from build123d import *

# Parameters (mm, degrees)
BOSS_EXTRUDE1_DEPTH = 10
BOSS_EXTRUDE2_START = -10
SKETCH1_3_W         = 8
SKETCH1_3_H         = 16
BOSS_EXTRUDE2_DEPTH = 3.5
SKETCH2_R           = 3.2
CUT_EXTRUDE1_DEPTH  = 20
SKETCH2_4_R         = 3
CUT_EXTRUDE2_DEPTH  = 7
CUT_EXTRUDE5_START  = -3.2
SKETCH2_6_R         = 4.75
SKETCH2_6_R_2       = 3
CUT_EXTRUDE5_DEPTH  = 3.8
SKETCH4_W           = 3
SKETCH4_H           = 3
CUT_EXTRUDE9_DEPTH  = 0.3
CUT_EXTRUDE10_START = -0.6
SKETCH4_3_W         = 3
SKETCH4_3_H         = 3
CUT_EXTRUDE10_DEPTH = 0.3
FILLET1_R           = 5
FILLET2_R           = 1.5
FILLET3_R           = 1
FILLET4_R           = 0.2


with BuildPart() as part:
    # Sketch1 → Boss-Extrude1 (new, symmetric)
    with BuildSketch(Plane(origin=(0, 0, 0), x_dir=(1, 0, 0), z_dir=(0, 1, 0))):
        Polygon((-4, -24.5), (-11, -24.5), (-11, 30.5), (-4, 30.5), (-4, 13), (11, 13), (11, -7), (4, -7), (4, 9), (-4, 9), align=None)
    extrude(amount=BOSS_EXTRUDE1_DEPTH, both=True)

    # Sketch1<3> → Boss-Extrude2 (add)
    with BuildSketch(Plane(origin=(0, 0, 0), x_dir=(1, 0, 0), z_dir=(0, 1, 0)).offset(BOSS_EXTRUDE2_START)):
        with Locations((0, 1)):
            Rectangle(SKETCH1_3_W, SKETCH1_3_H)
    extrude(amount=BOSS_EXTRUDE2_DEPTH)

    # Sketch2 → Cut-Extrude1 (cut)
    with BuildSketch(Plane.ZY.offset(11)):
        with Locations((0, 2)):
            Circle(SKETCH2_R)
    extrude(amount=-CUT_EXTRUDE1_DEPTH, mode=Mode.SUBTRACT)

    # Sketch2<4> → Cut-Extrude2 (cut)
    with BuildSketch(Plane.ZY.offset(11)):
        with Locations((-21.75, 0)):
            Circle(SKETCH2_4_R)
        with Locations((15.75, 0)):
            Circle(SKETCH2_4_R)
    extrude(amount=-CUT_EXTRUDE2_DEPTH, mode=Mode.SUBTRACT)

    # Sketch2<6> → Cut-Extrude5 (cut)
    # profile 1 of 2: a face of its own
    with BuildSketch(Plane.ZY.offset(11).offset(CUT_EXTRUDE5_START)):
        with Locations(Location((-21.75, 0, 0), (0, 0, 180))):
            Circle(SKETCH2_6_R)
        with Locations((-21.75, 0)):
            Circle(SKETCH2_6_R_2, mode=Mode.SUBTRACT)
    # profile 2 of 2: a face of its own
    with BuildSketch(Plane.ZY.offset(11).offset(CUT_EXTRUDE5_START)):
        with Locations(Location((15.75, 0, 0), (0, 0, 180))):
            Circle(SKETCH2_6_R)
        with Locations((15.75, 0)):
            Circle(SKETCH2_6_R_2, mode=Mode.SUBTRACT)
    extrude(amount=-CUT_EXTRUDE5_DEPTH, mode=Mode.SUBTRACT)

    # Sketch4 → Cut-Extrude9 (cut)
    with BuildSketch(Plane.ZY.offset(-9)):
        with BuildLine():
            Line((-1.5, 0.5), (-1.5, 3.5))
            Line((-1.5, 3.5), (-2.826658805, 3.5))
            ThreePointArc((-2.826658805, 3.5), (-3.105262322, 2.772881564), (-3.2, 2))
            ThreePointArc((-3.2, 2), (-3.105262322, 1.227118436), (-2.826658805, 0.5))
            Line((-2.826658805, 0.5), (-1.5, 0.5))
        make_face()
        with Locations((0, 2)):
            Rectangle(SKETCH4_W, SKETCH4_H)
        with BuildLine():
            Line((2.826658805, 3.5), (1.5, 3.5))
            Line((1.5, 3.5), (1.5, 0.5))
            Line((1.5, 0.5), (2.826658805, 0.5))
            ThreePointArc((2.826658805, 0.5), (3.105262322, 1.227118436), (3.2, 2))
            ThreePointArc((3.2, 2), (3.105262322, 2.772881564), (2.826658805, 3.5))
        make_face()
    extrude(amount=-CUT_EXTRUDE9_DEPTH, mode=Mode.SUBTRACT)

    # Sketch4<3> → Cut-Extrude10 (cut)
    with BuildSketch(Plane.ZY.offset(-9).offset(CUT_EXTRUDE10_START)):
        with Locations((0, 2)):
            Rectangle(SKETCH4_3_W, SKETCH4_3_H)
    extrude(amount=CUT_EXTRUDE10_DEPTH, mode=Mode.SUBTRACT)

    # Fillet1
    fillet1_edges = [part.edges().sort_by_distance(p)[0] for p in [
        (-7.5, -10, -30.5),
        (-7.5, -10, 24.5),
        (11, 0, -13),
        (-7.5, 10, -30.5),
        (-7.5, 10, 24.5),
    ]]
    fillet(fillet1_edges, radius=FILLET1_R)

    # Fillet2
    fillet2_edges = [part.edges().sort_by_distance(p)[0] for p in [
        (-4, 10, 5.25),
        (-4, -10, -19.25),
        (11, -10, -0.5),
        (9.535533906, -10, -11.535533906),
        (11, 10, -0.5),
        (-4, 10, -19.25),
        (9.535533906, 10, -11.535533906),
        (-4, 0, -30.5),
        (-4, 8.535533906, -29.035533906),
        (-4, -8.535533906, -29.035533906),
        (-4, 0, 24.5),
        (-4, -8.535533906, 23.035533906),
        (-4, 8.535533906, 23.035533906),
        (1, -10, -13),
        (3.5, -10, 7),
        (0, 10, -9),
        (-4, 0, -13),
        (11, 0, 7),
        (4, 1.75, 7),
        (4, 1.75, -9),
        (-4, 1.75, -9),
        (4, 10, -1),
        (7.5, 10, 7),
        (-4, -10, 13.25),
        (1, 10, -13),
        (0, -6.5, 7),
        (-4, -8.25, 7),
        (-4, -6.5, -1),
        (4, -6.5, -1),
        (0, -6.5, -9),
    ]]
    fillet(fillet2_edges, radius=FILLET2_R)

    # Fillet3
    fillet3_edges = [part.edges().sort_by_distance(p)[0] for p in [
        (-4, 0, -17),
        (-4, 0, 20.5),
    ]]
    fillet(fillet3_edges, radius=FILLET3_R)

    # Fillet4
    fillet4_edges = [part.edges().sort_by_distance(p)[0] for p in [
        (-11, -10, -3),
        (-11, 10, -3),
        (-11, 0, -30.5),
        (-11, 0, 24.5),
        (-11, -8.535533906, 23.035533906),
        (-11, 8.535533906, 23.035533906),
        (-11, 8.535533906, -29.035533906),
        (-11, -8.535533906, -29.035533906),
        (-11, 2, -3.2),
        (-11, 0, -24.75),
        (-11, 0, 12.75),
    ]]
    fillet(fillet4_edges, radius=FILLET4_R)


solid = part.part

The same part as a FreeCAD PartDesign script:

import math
import FreeCAD as App
import Part
import Sketcher
Q = App.Units.Quantity


def edges_at(feature, points):
    """Names of the edges that pass closest to the given points."""
    edges = feature.Shape.Edges
    near = lambda p: min(range(len(edges)), key=lambda i: edges[i].distToShape(Part.Vertex(*p))[0])
    return sorted({f"Edge{near(p) + 1}" for p in points})

doc = App.newDocument("Part")
params = doc.addObject("Spreadsheet::Sheet", "Params")
for row, (alias, value) in enumerate([
    ("sketch1_width", "7 mm"),
    ("sketch1_width2", "8 mm"),
    ("sketch1_height", "16 mm"),
    ("sketch1_height2", "20 mm"),
    ("sketch1_height3", "55 mm"),
    ("pad1_length", "20 mm"),
    ("sketch2_width", "8 mm"),
    ("sketch2_height", "16 mm"),
    ("pad2_length", "3.5 mm"),
    ("sketch3_diameter", "6.4 mm"),
    ("pocket1_length", "20 mm"),
    ("sketch4_diameter", "6 mm"),
    ("pocket2_length", "7 mm"),
    ("sketch5_diameter", "6 mm"),
    ("sketch5_diameter2", "9.5 mm"),
    ("pocket3_length", "3.8 mm"),
    ("sketch6_radius", "3.2 mm"),
    ("pocket4_length", "0.3 mm"),
    ("sketch7_width", "3 mm"),
    ("pocket5_length", "0.3 mm"),
    ("fillet_radius", "5 mm"),
    ("fillet2_radius", "1.5 mm"),
    ("fillet3_radius", "1 mm"),
    ("fillet4_radius", "0.2 mm"),
], start=1):
    params.set(f"A{row}", alias)
    params.set(f"B{row}", "=" + value)
    params.setAlias(f"B{row}", alias)

body = doc.addObject("PartDesign::Body", "Body")

# Sketch on XZ plane
sketch1 = body.newObject("Sketcher::SketchObject", "Sketch")
sketch1.AttachmentSupport = (doc.getObject("XZ_Plane"), [""])
sketch1.MapMode = "FlatFace"
sketch1.addGeometry(Part.LineSegment(App.Vector(-11, 24, 0), App.Vector(-4, 24, 0)), False)
sketch1.addGeometry(Part.LineSegment(App.Vector(-4, 24, 0), App.Vector(-4, -9, 0)), False)
sketch1.addGeometry(Part.LineSegment(App.Vector(-4, -9, 0), App.Vector(4, -9, 0)), False)
sketch1.addGeometry(Part.LineSegment(App.Vector(4, -9, 0), App.Vector(4, 7, 0)), False)
sketch1.addGeometry(Part.LineSegment(App.Vector(4, 7, 0), App.Vector(11, 7, 0)), False)
sketch1.addGeometry(Part.LineSegment(App.Vector(11, 7, 0), App.Vector(11, -13, 0)), False)
sketch1.addGeometry(Part.LineSegment(App.Vector(11, -13, 0), App.Vector(-4, -13, 0)), False)
sketch1.addGeometry(Part.LineSegment(App.Vector(-4, -13, 0), App.Vector(-4, -30, 0)), False)
sketch1.addGeometry(Part.LineSegment(App.Vector(-4, -30, 0), App.Vector(-11, -30, 0)), False)
sketch1.addGeometry(Part.LineSegment(App.Vector(-11, -30, 0), App.Vector(-11, 24, 0)), False)
sketch1.addConstraint(Sketcher.Constraint("Coincident", 0, 2, 1, 1))
sketch1.addConstraint(Sketcher.Constraint("Coincident", 1, 2, 2, 1))
sketch1.addConstraint(Sketcher.Constraint("Coincident", 2, 2, 3, 1))
sketch1.addConstraint(Sketcher.Constraint("Coincident", 3, 2, 4, 1))
sketch1.addConstraint(Sketcher.Constraint("Coincident", 4, 2, 5, 1))
sketch1.addConstraint(Sketcher.Constraint("Coincident", 5, 2, 6, 1))
sketch1.addConstraint(Sketcher.Constraint("Coincident", 6, 2, 7, 1))
sketch1.addConstraint(Sketcher.Constraint("Coincident", 7, 2, 8, 1))
sketch1.addConstraint(Sketcher.Constraint("Coincident", 8, 2, 9, 1))
sketch1.addConstraint(Sketcher.Constraint("Coincident", 9, 2, 0, 1))
sketch1.addConstraint(Sketcher.Constraint("Horizontal", 0))
sketch1.addConstraint(Sketcher.Constraint("Vertical", 1))
sketch1.addConstraint(Sketcher.Constraint("Horizontal", 2))
sketch1.addConstraint(Sketcher.Constraint("Vertical", 3))
sketch1.addConstraint(Sketcher.Constraint("Horizontal", 4))
sketch1.addConstraint(Sketcher.Constraint("Vertical", 5))
sketch1.addConstraint(Sketcher.Constraint("Horizontal", 6))
sketch1.addConstraint(Sketcher.Constraint("Vertical", 7))
sketch1.addConstraint(Sketcher.Constraint("Horizontal", 8))
sketch1.addConstraint(Sketcher.Constraint("Vertical", 9))
sketch1.addConstraint(Sketcher.Constraint("Vertical", 1, 2, 6, 2))
sketch1.addConstraint(Sketcher.Constraint("Equal", 0, 4))
sketch1.addConstraint(Sketcher.Constraint("DistanceX", 0, 1, 0, 2, Q("7 mm")))
sketch1.addConstraint(Sketcher.Constraint("DistanceX", 2, 1, 2, 2, Q("8 mm")))
sketch1.addConstraint(Sketcher.Constraint("DistanceY", 3, 1, 3, 2, Q("16 mm")))
sketch1.addConstraint(Sketcher.Constraint("DistanceY", 5, 2, 5, 1, Q("20 mm")))
sketch1.addConstraint(Sketcher.Constraint("DistanceY", 9, 1, 9, 2, Q("55 mm")))
sketch1.addConstraint(Sketcher.Constraint("DistanceY", 1, 2, 1, 1, Q("33.5 mm")))
sketch1.addConstraint(Sketcher.Constraint("DistanceX", 0, 2, -1, 1, Q("4 mm")))
sketch1.addConstraint(Sketcher.Constraint("DistanceY", 1, 2, -1, 1, Q("9 mm")))
sketch1.setExpression("Constraints[22]", "Params.sketch1_width")
sketch1.setExpression("Constraints[23]", "Params.sketch1_width2")
sketch1.setExpression("Constraints[24]", "Params.sketch1_height")
sketch1.setExpression("Constraints[25]", "Params.sketch1_height2")
sketch1.setExpression("Constraints[26]", "Params.sketch1_height3")
pad1 = body.newObject("PartDesign::Pad", "Pad")
pad1.Profile = sketch1
pad1.setExpression("Length", "Params.pad1_length")
pad1.Midplane = True

# Sketch on XZ plane
sketch2 = body.newObject("Sketcher::SketchObject", "Sketch001")
sketch2.AttachmentSupport = (doc.getObject("XZ_Plane"), [""])
sketch2.MapMode = "FlatFace"
sketch2.AttachmentOffset = App.Placement(App.Vector(0, 0, 10), App.Rotation())
sketch2.addGeometry(Part.LineSegment(App.Vector(-4, -9, 0), App.Vector(-4, 7, 0)), False)
sketch2.addGeometry(Part.LineSegment(App.Vector(-4, 7, 0), App.Vector(4, 7, 0)), False)
sketch2.addGeometry(Part.LineSegment(App.Vector(4, 7, 0), App.Vector(4, -9, 0)), False)
sketch2.addGeometry(Part.LineSegment(App.Vector(4, -9, 0), App.Vector(-4, -9, 0)), False)
sketch2.addConstraint(Sketcher.Constraint("Coincident", 0, 2, 1, 1))
sketch2.addConstraint(Sketcher.Constraint("Coincident", 1, 2, 2, 1))
sketch2.addConstraint(Sketcher.Constraint("Coincident", 2, 2, 3, 1))
sketch2.addConstraint(Sketcher.Constraint("Coincident", 3, 2, 0, 1))
sketch2.addConstraint(Sketcher.Constraint("Vertical", 0))
sketch2.addConstraint(Sketcher.Constraint("Horizontal", 1))
sketch2.addConstraint(Sketcher.Constraint("Vertical", 2))
sketch2.addConstraint(Sketcher.Constraint("Horizontal", 3))
sketch2.addConstraint(Sketcher.Constraint("DistanceX", 1, 1, 1, 2, Q("8 mm")))
sketch2.addConstraint(Sketcher.Constraint("DistanceY", 0, 1, 0, 2, Q("16 mm")))
sketch2.addConstraint(Sketcher.Constraint("DistanceX", 0, 2, -1, 1, Q("4 mm")))
sketch2.addConstraint(Sketcher.Constraint("DistanceY", -1, 1, 0, 2, Q("7 mm")))
sketch2.setExpression("Constraints[8]", "Params.sketch2_width")
sketch2.setExpression("Constraints[9]", "Params.sketch2_height")
pad2 = body.newObject("PartDesign::Pad", "Pad001")
pad2.Profile = sketch2
pad2.setExpression("Length", "Params.pad2_length")
pad2.Reversed = True

# Sketch on YZ plane
sketch3 = body.newObject("Sketcher::SketchObject", "Sketch002")
sketch3.AttachmentSupport = (doc.getObject("YZ_Plane"), [""])
sketch3.MapMode = "FlatFace"
sketch3.AttachmentOffset = App.Placement(App.Vector(0, 0, -11), App.Rotation())
sketch3.addGeometry(Part.Circle(App.Vector(2, 0, 0), App.Vector(0, 0, 1), 3.2), False)
sketch3.addConstraint(Sketcher.Constraint("PointOnObject", 0, 3, -1))
sketch3.addConstraint(Sketcher.Constraint("Diameter", 0, Q("6.4 mm")))
sketch3.addConstraint(Sketcher.Constraint("DistanceX", -1, 1, 0, 3, Q("2 mm")))
sketch3.setExpression("Constraints[1]", "Params.sketch3_diameter")
pocket1 = body.newObject("PartDesign::Pocket", "Pocket")
pocket1.Profile = sketch3
pocket1.setExpression("Length", "Params.pocket1_length")
pocket1.Reversed = True

# Sketch on YZ plane
sketch4 = body.newObject("Sketcher::SketchObject", "Sketch003")
sketch4.AttachmentSupport = (doc.getObject("YZ_Plane"), [""])
sketch4.MapMode = "FlatFace"
sketch4.AttachmentOffset = App.Placement(App.Vector(0, 0, -11), App.Rotation())
sketch4.addGeometry(Part.Circle(App.Vector(0, -21.8, 0), App.Vector(0, 0, 1), 3), False)
sketch4.addGeometry(Part.Circle(App.Vector(0, 15.8, 0), App.Vector(0, 0, 1), 3), False)
sketch4.addConstraint(Sketcher.Constraint("Equal", 0, 1))
sketch4.addConstraint(Sketcher.Constraint("PointOnObject", 0, 3, -2))
sketch4.addConstraint(Sketcher.Constraint("PointOnObject", 1, 3, -2))
sketch4.addConstraint(Sketcher.Constraint("Diameter", 0, Q("6 mm")))
sketch4.addConstraint(Sketcher.Constraint("DistanceY", 0, 3, 1, 3, Q("37.5 mm")))
sketch4.addConstraint(Sketcher.Constraint("DistanceY", 0, 3, -1, 1, Q("21.75 mm")))
sketch4.setExpression("Constraints[3]", "Params.sketch4_diameter")
pocket2 = body.newObject("PartDesign::Pocket", "Pocket001")
pocket2.Profile = sketch4
pocket2.setExpression("Length", "Params.pocket2_length")
pocket2.Reversed = True

# Sketch on YZ plane
sketch5 = body.newObject("Sketcher::SketchObject", "Sketch004")
sketch5.AttachmentSupport = (doc.getObject("YZ_Plane"), [""])
sketch5.MapMode = "FlatFace"
sketch5.AttachmentOffset = App.Placement(App.Vector(0, 0, -7.8), App.Rotation())
sketch5.addGeometry(Part.Circle(App.Vector(0, -21.8, 0), App.Vector(0, 0, 1), 4.8), False)
sketch5.addGeometry(Part.Circle(App.Vector(0, -21.8, 0), App.Vector(0, 0, 1), 3), False)
sketch5.addGeometry(Part.Circle(App.Vector(0, 15.8, 0), App.Vector(0, 0, 1), 4.8), False)
sketch5.addGeometry(Part.Circle(App.Vector(0, 15.8, 0), App.Vector(0, 0, 1), 3), False)
sketch5.addConstraint(Sketcher.Constraint("Coincident", 1, 3, 0, 3))
sketch5.addConstraint(Sketcher.Constraint("Coincident", 3, 3, 2, 3))
sketch5.addConstraint(Sketcher.Constraint("Equal", 0, 2))
sketch5.addConstraint(Sketcher.Constraint("Equal", 1, 3))
sketch5.addConstraint(Sketcher.Constraint("PointOnObject", 0, 3, -2))
sketch5.addConstraint(Sketcher.Constraint("PointOnObject", 2, 3, -2))
sketch5.addConstraint(Sketcher.Constraint("Diameter", 1, Q("6 mm")))
sketch5.addConstraint(Sketcher.Constraint("Diameter", 0, Q("9.5 mm")))
sketch5.addConstraint(Sketcher.Constraint("DistanceY", 0, 3, 2, 3, Q("37.5 mm")))
sketch5.addConstraint(Sketcher.Constraint("DistanceY", 0, 3, -1, 1, Q("21.75 mm")))
sketch5.setExpression("Constraints[6]", "Params.sketch5_diameter")
sketch5.setExpression("Constraints[7]", "Params.sketch5_diameter2")
pocket3 = body.newObject("PartDesign::Pocket", "Pocket002")
pocket3.Profile = sketch5
pocket3.setExpression("Length", "Params.pocket3_length")
pocket3.Reversed = True

# Sketch on YZ plane
sketch6 = body.newObject("Sketcher::SketchObject", "Sketch005")
sketch6.AttachmentSupport = (doc.getObject("YZ_Plane"), [""])
sketch6.MapMode = "FlatFace"
sketch6.AttachmentOffset = App.Placement(App.Vector(0, 0, 9), App.Rotation())
sketch6.addGeometry(Part.ArcOfCircle(Part.Circle(App.Vector(2, 0, 0), App.Vector(0, 0, 1), 3.2), math.radians(-90), math.radians(-62)), False)
sketch6.addGeometry(Part.ArcOfCircle(Part.Circle(App.Vector(2, 0, 0), App.Vector(0, 0, 1), 3.2), math.radians(-118), math.radians(-90)), False)
sketch6.addGeometry(Part.LineSegment(App.Vector(0.5, -2.8, 0), App.Vector(0.5, 2.8, 0)), False)
sketch6.addGeometry(Part.ArcOfCircle(Part.Circle(App.Vector(2, 0, 0), App.Vector(0, 0, 1), 3.2), math.radians(90), math.radians(118)), False)
sketch6.addGeometry(Part.ArcOfCircle(Part.Circle(App.Vector(2, 0, 0), App.Vector(0, 0, 1), 3.2), math.radians(62), math.radians(90)), False)
sketch6.addGeometry(Part.LineSegment(App.Vector(3.5, 2.8, 0), App.Vector(3.5, -2.8, 0)), False)
sketch6.addConstraint(Sketcher.Constraint("Tangent", 0, 1, 1, 2))
sketch6.addConstraint(Sketcher.Constraint("Coincident", 1, 1, 2, 1))
sketch6.addConstraint(Sketcher.Constraint("Coincident", 2, 2, 3, 2))
sketch6.addConstraint(Sketcher.Constraint("Tangent", 3, 1, 4, 2))
sketch6.addConstraint(Sketcher.Constraint("Coincident", 4, 1, 5, 1))
sketch6.addConstraint(Sketcher.Constraint("Coincident", 5, 2, 0, 2))
sketch6.addConstraint(Sketcher.Constraint("Vertical", 2))
sketch6.addConstraint(Sketcher.Constraint("Vertical", 5))
sketch6.addConstraint(Sketcher.Constraint("Coincident", 3, 3, 0, 3))
sketch6.addConstraint(Sketcher.Constraint("Equal", 0, 1))
sketch6.addConstraint(Sketcher.Constraint("Equal", 1, 3))
sketch6.addConstraint(Sketcher.Constraint("Equal", 3, 4))
sketch6.addConstraint(Sketcher.Constraint("Symmetric", 0, 1, 3, 1, -1))
sketch6.addConstraint(Sketcher.Constraint("Horizontal", 2, 2, 4, 1))
sketch6.addConstraint(Sketcher.Constraint("Vertical", 4, 3, 0, 1))
sketch6.addConstraint(Sketcher.Constraint("Radius", 0, Q("3.2 mm")))
sketch6.addConstraint(Sketcher.Constraint("DistanceX", -1, 1, 0, 3, Q("2 mm")))
sketch6.addConstraint(Sketcher.Constraint("DistanceX", 2, 2, 4, 1, Q("3 mm")))
sketch6.setExpression("Constraints[15]", "Params.sketch6_radius")
pocket4 = body.newObject("PartDesign::Pocket", "Pocket003")
pocket4.Profile = sketch6
pocket4.setExpression("Length", "Params.pocket4_length")
pocket4.Reversed = True

# Sketch on YZ plane
sketch7 = body.newObject("Sketcher::SketchObject", "Sketch006")
sketch7.AttachmentSupport = (doc.getObject("YZ_Plane"), [""])
sketch7.MapMode = "FlatFace"
sketch7.AttachmentOffset = App.Placement(App.Vector(0, 0, 9.6), App.Rotation())
sketch7.addGeometry(Part.LineSegment(App.Vector(3.5, -1.5, 0), App.Vector(0.5, -1.5, 0)), False)
sketch7.addGeometry(Part.LineSegment(App.Vector(0.5, -1.5, 0), App.Vector(0.5, 1.5, 0)), False)
sketch7.addGeometry(Part.LineSegment(App.Vector(0.5, 1.5, 0), App.Vector(3.5, 1.5, 0)), False)
sketch7.addGeometry(Part.LineSegment(App.Vector(3.5, 1.5, 0), App.Vector(3.5, -1.5, 0)), False)
sketch7.addConstraint(Sketcher.Constraint("Coincident", 0, 2, 1, 1))
sketch7.addConstraint(Sketcher.Constraint("Coincident", 1, 2, 2, 1))
sketch7.addConstraint(Sketcher.Constraint("Coincident", 2, 2, 3, 1))
sketch7.addConstraint(Sketcher.Constraint("Coincident", 3, 2, 0, 1))
sketch7.addConstraint(Sketcher.Constraint("Horizontal", 0))
sketch7.addConstraint(Sketcher.Constraint("Vertical", 1))
sketch7.addConstraint(Sketcher.Constraint("Horizontal", 2))
sketch7.addConstraint(Sketcher.Constraint("Vertical", 3))
sketch7.addConstraint(Sketcher.Constraint("Equal", 2, 1))
sketch7.addConstraint(Sketcher.Constraint("DistanceX", 0, 2, 0, 1, Q("3 mm")))
sketch7.addConstraint(Sketcher.Constraint("DistanceX", -1, 1, 0, 2, Q("0.5 mm")))
sketch7.addConstraint(Sketcher.Constraint("DistanceY", 0, 2, -1, 1, Q("1.5 mm")))
sketch7.setExpression("Constraints[9]", "Params.sketch7_width")
pocket5 = body.newObject("PartDesign::Pocket", "Pocket004")
pocket5.Profile = sketch7
pocket5.setExpression("Length", "Params.pocket5_length")
doc.recompute()

fillet = body.newObject("PartDesign::Fillet", "Fillet")
fillet.Base = (pocket5, edges_at(pocket5, [
    (-7.5, -10, -30.5),
    (-7.5, -10, 24.5),
    (11, 0, -13),
    (-7.5, 10, -30.5),
    (-7.5, 10, 24.5),
]))
fillet.setExpression("Radius", "Params.fillet_radius")
doc.recompute()

fillet2 = body.newObject("PartDesign::Fillet", "Fillet001")
fillet2.Base = (fillet, edges_at(fillet, [
    (-4, 10, 5.25),
    (-4, -10, -19.25),
    (11, -10, -0.5),
    (9.536, -10, -11.536),
    (11, 10, -0.5),
    (-4, 10, -19.25),
    (9.536, 10, -11.536),
    (-4, 0, -30.5),
    (-4, 8.536, -29.036),
    (-4, -8.536, -29.036),
    (-4, 0, 24.5),
    (-4, -8.536, 23.036),
    (-4, 8.536, 23.036),
    (1, -10, -13),
    (3.5, -10, 7),
    (0, 10, -9),
    (-4, 0, -13),
    (11, 0, 7),
    (4, 1.75, 7),
    (4, 1.75, -9),
    (-4, 1.75, -9),
    (4, 10, -1),
    (7.5, 10, 7),
    (-4, -10, 13.25),
    (1, 10, -13),
    (0, -6.5, 7),
    (-4, -8.25, 7),
    (-4, -6.5, -1),
    (4, -6.5, -1),
    (0, -6.5, -9),
]))
fillet2.setExpression("Radius", "Params.fillet2_radius")
doc.recompute()

fillet3 = body.newObject("PartDesign::Fillet", "Fillet002")
fillet3.Base = (fillet2, edges_at(fillet2, [(-4, 0, -17), (-4, 0, 20.5)]))
fillet3.setExpression("Radius", "Params.fillet3_radius")
doc.recompute()

fillet4 = body.newObject("PartDesign::Fillet", "Fillet003")
fillet4.Base = (fillet3, edges_at(fillet3, [
    (-11, -10, -3),
    (-11, 10, -3),
    (-11, 0, -30.5),
    (-11, 0, 24.5),
    (-11, -8.536, 23.036),
    (-11, 8.536, 23.036),
    (-11, 8.536, -29.036),
    (-11, -8.536, -29.036),
    (-11, 2, -3.2),
    (-11, 0, -24.75),
    (-11, 0, 12.75),
]))
fillet4.setExpression("Radius", "Params.fillet4_radius")

doc.recompute()
